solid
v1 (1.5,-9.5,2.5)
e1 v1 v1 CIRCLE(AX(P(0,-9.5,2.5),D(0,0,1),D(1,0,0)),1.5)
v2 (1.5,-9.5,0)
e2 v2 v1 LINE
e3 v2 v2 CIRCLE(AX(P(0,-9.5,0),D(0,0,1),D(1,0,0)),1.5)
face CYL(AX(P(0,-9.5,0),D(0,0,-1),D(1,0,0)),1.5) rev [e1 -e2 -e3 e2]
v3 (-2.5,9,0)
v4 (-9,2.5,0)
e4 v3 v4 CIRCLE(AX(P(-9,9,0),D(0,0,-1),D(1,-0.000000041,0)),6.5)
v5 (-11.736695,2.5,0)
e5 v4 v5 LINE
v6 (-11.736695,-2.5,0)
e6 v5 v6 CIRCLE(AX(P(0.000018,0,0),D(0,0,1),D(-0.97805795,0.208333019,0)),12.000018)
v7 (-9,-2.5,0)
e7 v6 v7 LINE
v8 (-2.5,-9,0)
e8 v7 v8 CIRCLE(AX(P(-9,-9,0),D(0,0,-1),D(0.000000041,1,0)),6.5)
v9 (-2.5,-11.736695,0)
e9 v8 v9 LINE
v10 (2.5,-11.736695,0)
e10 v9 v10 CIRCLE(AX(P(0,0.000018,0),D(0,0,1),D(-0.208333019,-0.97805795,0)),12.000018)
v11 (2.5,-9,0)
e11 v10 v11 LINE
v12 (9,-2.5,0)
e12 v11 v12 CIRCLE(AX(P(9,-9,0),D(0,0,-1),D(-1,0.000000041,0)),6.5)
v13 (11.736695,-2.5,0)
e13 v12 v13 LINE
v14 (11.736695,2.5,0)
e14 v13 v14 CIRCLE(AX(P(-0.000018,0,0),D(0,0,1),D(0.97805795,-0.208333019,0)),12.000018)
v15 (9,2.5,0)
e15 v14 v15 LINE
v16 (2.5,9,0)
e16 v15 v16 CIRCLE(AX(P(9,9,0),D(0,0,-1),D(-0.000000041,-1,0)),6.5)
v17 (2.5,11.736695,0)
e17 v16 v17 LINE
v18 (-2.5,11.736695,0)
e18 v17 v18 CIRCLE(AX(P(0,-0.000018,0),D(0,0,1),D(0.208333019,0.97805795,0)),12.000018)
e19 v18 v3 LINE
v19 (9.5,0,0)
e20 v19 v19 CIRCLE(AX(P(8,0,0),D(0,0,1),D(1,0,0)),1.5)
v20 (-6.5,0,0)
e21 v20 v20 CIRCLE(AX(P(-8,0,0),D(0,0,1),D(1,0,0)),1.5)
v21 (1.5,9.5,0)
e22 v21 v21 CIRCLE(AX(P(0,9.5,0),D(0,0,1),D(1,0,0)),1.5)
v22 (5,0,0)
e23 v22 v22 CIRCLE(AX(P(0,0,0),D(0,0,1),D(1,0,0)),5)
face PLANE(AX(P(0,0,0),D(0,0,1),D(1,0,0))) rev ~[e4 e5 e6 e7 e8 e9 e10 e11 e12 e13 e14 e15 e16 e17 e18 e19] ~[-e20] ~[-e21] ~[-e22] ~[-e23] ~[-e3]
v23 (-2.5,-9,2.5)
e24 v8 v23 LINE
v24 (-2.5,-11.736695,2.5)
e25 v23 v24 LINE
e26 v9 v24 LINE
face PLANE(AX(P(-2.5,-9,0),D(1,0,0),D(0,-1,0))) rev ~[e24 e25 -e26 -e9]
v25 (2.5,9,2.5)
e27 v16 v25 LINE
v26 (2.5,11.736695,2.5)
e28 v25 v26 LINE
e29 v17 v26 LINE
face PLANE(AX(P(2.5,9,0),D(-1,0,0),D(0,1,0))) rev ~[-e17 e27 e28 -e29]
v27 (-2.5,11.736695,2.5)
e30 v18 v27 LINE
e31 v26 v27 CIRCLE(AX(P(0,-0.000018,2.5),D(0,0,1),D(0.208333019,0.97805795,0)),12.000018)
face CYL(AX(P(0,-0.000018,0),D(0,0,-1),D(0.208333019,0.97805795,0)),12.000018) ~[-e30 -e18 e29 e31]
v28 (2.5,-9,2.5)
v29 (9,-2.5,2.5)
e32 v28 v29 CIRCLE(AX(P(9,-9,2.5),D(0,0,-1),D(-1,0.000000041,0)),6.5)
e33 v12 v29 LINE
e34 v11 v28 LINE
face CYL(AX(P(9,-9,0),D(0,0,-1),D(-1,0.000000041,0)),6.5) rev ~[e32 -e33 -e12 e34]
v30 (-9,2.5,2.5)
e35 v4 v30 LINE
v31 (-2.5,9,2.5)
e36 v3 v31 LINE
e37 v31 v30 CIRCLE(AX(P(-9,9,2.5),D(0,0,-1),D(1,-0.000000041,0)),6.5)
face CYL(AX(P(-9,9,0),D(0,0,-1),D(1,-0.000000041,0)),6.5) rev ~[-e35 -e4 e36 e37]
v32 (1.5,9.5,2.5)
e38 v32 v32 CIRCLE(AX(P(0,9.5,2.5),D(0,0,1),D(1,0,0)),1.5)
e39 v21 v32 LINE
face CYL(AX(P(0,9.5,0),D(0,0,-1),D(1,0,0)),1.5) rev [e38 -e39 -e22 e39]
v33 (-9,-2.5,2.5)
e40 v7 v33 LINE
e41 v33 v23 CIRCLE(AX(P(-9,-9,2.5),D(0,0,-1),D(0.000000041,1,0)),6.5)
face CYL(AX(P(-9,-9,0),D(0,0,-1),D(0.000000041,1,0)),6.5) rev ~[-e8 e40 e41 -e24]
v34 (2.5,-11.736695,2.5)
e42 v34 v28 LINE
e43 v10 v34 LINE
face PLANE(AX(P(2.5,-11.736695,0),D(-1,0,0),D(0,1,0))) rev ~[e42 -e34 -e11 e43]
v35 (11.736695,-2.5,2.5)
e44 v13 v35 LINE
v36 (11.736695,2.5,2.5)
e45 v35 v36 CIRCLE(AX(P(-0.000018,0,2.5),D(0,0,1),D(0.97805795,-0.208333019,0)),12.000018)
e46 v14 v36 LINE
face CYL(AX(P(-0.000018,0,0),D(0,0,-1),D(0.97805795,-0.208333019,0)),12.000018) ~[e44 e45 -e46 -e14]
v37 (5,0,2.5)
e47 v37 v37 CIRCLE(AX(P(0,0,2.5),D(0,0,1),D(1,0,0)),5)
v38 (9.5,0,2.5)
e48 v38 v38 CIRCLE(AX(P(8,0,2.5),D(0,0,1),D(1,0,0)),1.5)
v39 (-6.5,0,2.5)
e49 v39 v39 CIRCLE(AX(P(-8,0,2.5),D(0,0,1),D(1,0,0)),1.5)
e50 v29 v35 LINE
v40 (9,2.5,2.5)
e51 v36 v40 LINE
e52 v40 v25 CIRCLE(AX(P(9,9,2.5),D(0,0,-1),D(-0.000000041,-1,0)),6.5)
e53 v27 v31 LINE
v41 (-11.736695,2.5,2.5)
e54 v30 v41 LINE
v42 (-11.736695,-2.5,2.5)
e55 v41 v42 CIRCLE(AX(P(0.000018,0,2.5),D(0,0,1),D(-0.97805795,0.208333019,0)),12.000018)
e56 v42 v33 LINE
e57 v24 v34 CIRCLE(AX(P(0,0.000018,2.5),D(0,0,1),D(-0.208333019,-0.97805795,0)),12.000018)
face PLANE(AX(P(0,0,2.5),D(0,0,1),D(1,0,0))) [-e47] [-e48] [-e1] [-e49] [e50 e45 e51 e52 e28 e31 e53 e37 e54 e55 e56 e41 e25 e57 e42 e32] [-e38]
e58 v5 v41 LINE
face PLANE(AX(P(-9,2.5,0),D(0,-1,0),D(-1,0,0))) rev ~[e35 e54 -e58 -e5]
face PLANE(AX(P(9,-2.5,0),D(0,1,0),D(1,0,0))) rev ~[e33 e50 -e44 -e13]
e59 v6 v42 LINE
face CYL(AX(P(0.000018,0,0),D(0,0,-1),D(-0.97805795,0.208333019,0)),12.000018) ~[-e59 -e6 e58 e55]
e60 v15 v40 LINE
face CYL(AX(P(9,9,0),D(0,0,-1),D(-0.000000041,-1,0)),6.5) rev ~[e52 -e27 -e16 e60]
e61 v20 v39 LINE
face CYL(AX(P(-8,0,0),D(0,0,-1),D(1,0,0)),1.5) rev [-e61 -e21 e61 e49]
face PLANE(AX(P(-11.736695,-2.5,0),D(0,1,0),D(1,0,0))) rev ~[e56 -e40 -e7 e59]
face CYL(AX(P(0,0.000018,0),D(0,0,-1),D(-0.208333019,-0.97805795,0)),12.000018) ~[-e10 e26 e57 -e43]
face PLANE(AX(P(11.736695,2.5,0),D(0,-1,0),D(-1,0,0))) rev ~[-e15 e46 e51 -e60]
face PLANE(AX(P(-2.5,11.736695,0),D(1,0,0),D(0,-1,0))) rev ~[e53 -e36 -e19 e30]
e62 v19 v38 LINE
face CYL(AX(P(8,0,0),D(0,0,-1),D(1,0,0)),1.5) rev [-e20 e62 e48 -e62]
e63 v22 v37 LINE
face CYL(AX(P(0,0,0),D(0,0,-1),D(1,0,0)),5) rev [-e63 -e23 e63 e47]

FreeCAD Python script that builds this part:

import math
import FreeCAD as App
import Part
import Sketcher

V = App.Vector

doc = App.newDocument("Part")
body = doc.addObject("PartDesign::Body", "Body")

# Sketch on XY plane
sketch1 = doc.addObject("Sketcher::SketchObject", "Sketch")
body.addObject(sketch1)
sketch1.AttachmentSupport = (doc.XY_Plane, [""])
sketch1.MapMode = "FlatFace"
sketch1.addGeometry([
    Part.LineSegment(V(-2.5, 11.736695, 0), V(-2.5, 9, 0)),  # 0
    Part.ArcOfCircle(Part.Circle(V(-9, 9, 0), V(0, 0, 1), 6.5), math.radians(-89.999998), math.radians(-0.000002)),  # 1
    Part.LineSegment(V(-9, 2.5, 0), V(-11.736695, 2.5, 0)),  # 2
    Part.ArcOfCircle(Part.Circle(V(0.000018, 0, 0), V(0, 0, 1), 12.000018), math.radians(167.975319), math.radians(192.024681)),  # 3
    Part.LineSegment(V(-11.736695, -2.5, 0), V(-9, -2.5, 0)),  # 4
    Part.ArcOfCircle(Part.Circle(V(-9, -9, 0), V(0, 0, 1), 6.5), math.radians(0.000002), math.radians(89.999998)),  # 5
    Part.LineSegment(V(-2.5, -9, 0), V(-2.5, -11.736695, 0)),  # 6
    Part.ArcOfCircle(Part.Circle(V(0, 0.000018, 0), V(0, 0, 1), 12.000018), math.radians(-102.024681), math.radians(-77.975319)),  # 7
    Part.LineSegment(V(2.5, -11.736695, 0), V(2.5, -9, 0)),  # 8
    Part.ArcOfCircle(Part.Circle(V(9, -9, 0), V(0, 0, 1), 6.5), math.radians(90.000002), math.radians(179.999998)),  # 9
    Part.LineSegment(V(9, -2.5, 0), V(11.736695, -2.5, 0)),  # 10
    Part.ArcOfCircle(Part.Circle(V(-0.000018, 0, 0), V(0, 0, 1), 12.000018), math.radians(-12.024681), math.radians(12.024681)),  # 11
    Part.LineSegment(V(11.736695, 2.5, 0), V(9, 2.5, 0)),  # 12
    Part.ArcOfCircle(Part.Circle(V(9, 9, 0), V(0, 0, 1), 6.5), math.radians(-179.999998), math.radians(-90.000002)),  # 13
    Part.LineSegment(V(2.5, 9, 0), V(2.5, 11.736695, 0)),  # 14
    Part.ArcOfCircle(Part.Circle(V(0, -0.000018, 0), V(0, 0, 1), 12.000018), math.radians(77.975319), math.radians(102.024681)),  # 15
    Part.Circle(V(0, -9.5, 0), V(0, 0, 1), 1.5),  # 16
    Part.Circle(V(-8, 0, 0), V(0, 0, 1), 1.5),  # 17
    Part.Circle(V(0, 0, 0), V(0, 0, 1), 5),  # 18
    Part.Circle(V(8, 0, 0), V(0, 0, 1), 1.5),  # 19
    Part.Circle(V(0, 9.5, 0), V(0, 0, 1), 1.5),  # 20
], False)
sketch1.addConstraint([
    Sketcher.Constraint("Tangent", 0, 2, 1, 2),
    Sketcher.Constraint("Tangent", 1, 1, 2, 1),
    Sketcher.Constraint("Coincident", 2, 2, 3, 1),
    Sketcher.Constraint("Coincident", 3, 2, 4, 1),
    Sketcher.Constraint("Tangent", 4, 2, 5, 2),
    Sketcher.Constraint("Tangent", 5, 1, 6, 1),
    Sketcher.Constraint("Coincident", 6, 2, 7, 1),
    Sketcher.Constraint("Coincident", 7, 2, 8, 1),
    Sketcher.Constraint("Tangent", 8, 2, 9, 2),
    Sketcher.Constraint("Tangent", 9, 1, 10, 1),
    Sketcher.Constraint("Coincident", 10, 2, 11, 1),
    Sketcher.Constraint("Coincident", 11, 2, 12, 1),
    Sketcher.Constraint("Tangent", 12, 2, 13, 2),
    Sketcher.Constraint("Tangent", 13, 1, 14, 1),
    Sketcher.Constraint("Coincident", 14, 2, 15, 1),
    Sketcher.Constraint("Coincident", 15, 2, 0, 1),
    Sketcher.Constraint("Vertical", 0),
    Sketcher.Constraint("Horizontal", 2),
    Sketcher.Constraint("Horizontal", 4),
    Sketcher.Constraint("Vertical", 6),
    Sketcher.Constraint("Vertical", 8),
    Sketcher.Constraint("Horizontal", 10),
    Sketcher.Constraint("Horizontal", 12),
    Sketcher.Constraint("Vertical", 14),
    Sketcher.Constraint("Coincident", 18, 3, -1, 1),
    Sketcher.Constraint("Equal", 1, 5),
    Sketcher.Constraint("Equal", 3, 7),
    Sketcher.Constraint("Equal", 5, 9),
    Sketcher.Constraint("Equal", 7, 11),
    Sketcher.Constraint("Equal", 9, 13),
    Sketcher.Constraint("Equal", 11, 15),
    Sketcher.Constraint("Equal", 16, 17),
    Sketcher.Constraint("Equal", 17, 19),
    Sketcher.Constraint("Equal", 19, 20),
    Sketcher.Constraint("Symmetric", 1, 3, 9, 3, -1, 1),
    Sketcher.Constraint("Symmetric", 3, 3, 11, 3, -1, 1),
    Sketcher.Constraint("Symmetric", 5, 3, 13, 3, -1, 1),
    Sketcher.Constraint("Symmetric", 7, 3, 15, 3, -1, 1),
    Sketcher.Constraint("Symmetric", 17, 3, 19, 3, -1, 1),
    Sketcher.Constraint("Symmetric", 16, 3, 20, 3, -1, 1),
    Sketcher.Constraint("Symmetric", 5, 3, 9, 3, -2),
    Sketcher.Constraint("PointOnObject", 3, 3, -1),
    Sketcher.Constraint("PointOnObject", 7, 3, -2),
    Sketcher.Constraint("PointOnObject", 16, 3, -2),
    Sketcher.Constraint("PointOnObject", 17, 3, -1),
    Sketcher.Constraint("Equal", 12, 0),
    Sketcher.Constraint("Diameter", 16, 3.0),
    Sketcher.Constraint("Diameter", 18, 10.0),
    Sketcher.Constraint("Radius", 1, 6.5),
    Sketcher.Constraint("DistanceX", 1, 3, -1, 1, 9.0),
    Sketcher.Constraint("DistanceY", -1, 1, 1, 3, 9.0),
    Sketcher.Constraint("DistanceX", 17, 3, -1, 1, 8.0),
    Sketcher.Constraint("DistanceY", 16, 3, -1, 1, 9.5),
    Sketcher.Constraint("Radius", 3, 12.000018),
    Sketcher.Constraint("DistanceX", 2, 2, 2, 1, 2.736695),
])
pad1 = doc.addObject("PartDesign::Pad", "Pad")
body.addObject(pad1)
pad1.Profile = sketch1
pad1.Length = 2.5

doc.recompute()
